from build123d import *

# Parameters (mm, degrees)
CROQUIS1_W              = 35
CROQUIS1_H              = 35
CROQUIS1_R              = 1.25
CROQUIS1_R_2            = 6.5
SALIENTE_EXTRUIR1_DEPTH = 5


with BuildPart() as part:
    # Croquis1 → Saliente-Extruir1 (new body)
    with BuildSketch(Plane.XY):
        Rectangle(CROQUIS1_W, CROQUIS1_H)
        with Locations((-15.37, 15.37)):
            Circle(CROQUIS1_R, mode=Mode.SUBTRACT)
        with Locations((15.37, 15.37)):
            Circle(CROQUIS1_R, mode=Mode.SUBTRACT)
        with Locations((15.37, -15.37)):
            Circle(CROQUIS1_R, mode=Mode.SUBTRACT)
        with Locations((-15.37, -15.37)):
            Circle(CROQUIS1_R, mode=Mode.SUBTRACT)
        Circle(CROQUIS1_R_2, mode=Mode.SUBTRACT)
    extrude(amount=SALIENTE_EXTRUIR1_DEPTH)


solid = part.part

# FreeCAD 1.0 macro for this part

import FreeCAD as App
import Part
import Sketcher
from FreeCAD import Vector

doc = App.newDocument("Part")
params = doc.addObject("Spreadsheet::Sheet", "Params")
for row, (alias, value) in enumerate([
    ("sketch1_diameter", "13 mm"),
    ("sketch1_diameter2", "2.5 mm"),
    ("sketch1_width", "35 mm"),
    ("pad1_length", "5 mm"),
], start=1):
    params.set(f"A{row}", alias)
    params.set(f"B{row}", "=" + value)
    params.setAlias(f"B{row}", alias)

body = doc.addObject("PartDesign::Body", "Body")

# Sketch on XY plane
sketch1 = body.newObject("Sketcher::SketchObject", "Sketch")
sketch1.AttachmentSupport = (doc.getObject("XY_Plane"), [""])
sketch1.MapMode = "FlatFace"
sketch1.addGeometry([
    Part.LineSegment(Vector(-17.5, 17.5, 0), Vector(-17.5, -17.5, 0)),  # 0
    Part.LineSegment(Vector(-17.5, -17.5, 0), Vector(17.5, -17.5, 0)),  # 1
    Part.LineSegment(Vector(17.5, -17.5, 0), Vector(17.5, 17.5, 0)),  # 2
    Part.LineSegment(Vector(17.5, 17.5, 0), Vector(-17.5, 17.5, 0)),  # 3
    Part.Circle(Vector(-15.4, -15.4, 0), Vector(0, 0, 1), 1.2),  # 4
    Part.Circle(Vector(15.4, -15.4, 0), Vector(0, 0, 1), 1.2),  # 5
    Part.Circle(Vector(-15.4, 15.4, 0), Vector(0, 0, 1), 1.2),  # 6
    Part.Circle(Vector(0, 0, 0), Vector(0, 0, 1), 6.5),  # 7
    Part.Circle(Vector(15.4, 15.4, 0), Vector(0, 0, 1), 1.2),  # 8
], False)
sketch1.addConstraint([
    Sketcher.Constraint("Coincident", 0, 2, 1, 1),
    Sketcher.Constraint("Coincident", 1, 2, 2, 1),
    Sketcher.Constraint("Coincident", 2, 2, 3, 1),
    Sketcher.Constraint("Coincident", 3, 2, 0, 1),
    Sketcher.Constraint("Vertical", 0),
    Sketcher.Constraint("Horizontal", 1),
    Sketcher.Constraint("Vertical", 2),
    Sketcher.Constraint("Horizontal", 3),
    Sketcher.Constraint("Coincident", 7, 3, -1, 1),
    Sketcher.Constraint("Equal", 4, 5),
    Sketcher.Constraint("Equal", 5, 6),
    Sketcher.Constraint("Equal", 6, 8),
    Sketcher.Constraint("Symmetric", 5, 3, 6, 3, -1, 1),
    Sketcher.Constraint("Symmetric", 4, 3, 8, 3, -1, 1),
    Sketcher.Constraint("Symmetric", 0, 2, 2, 2, -1, 1),
    Sketcher.Constraint("Symmetric", 4, 3, 5, 3, -2),
    Sketcher.Constraint("Equal", 3, 0),
    Sketcher.Constraint("Diameter", 7, 13.0),
    Sketcher.Constraint("Diameter", 4, 2.5),
    Sketcher.Constraint("DistanceX", 1, 1, 1, 2, 35.0),
    Sketcher.Constraint("DistanceX", 4, 3, -1, 1, 15.37),
    Sketcher.Constraint("DistanceY", 4, 3, -1, 1, 15.37),
])
sketch1.setExpression("Constraints[17]", "Params.sketch1_diameter")
sketch1.setExpression("Constraints[18]", "Params.sketch1_diameter2")
sketch1.setExpression("Constraints[19]", "Params.sketch1_width")
pad1 = body.newObject("PartDesign::Pad", "Pad")
pad1.Profile = sketch1
pad1.setExpression("Length", "Params.pad1_length")

doc.recompute()
